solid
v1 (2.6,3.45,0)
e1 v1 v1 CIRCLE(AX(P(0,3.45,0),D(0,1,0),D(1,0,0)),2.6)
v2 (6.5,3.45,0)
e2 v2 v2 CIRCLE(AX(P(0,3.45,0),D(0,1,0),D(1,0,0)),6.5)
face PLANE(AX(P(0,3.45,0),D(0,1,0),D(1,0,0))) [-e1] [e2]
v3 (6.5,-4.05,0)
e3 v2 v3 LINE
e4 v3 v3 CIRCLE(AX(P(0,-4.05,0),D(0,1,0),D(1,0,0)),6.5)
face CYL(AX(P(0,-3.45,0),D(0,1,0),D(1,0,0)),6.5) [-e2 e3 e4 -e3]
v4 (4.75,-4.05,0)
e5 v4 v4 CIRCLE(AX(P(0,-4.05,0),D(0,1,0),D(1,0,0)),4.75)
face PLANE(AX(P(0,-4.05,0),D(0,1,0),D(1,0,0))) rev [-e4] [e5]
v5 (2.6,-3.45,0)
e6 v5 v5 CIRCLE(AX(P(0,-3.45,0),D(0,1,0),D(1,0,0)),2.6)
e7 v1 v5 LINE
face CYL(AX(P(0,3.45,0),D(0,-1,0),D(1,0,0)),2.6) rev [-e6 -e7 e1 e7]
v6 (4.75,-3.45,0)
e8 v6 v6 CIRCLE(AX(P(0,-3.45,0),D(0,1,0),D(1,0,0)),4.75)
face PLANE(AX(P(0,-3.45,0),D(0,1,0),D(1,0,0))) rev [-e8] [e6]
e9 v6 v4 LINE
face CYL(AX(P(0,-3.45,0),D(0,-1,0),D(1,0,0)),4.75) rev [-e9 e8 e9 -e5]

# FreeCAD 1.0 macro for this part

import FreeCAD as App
import Part
import Sketcher
from FreeCAD import Vector
Q = App.Units.Quantity


def add_polygon(sketch, points):
    """Adds a closed chain of lines whose ends are joined by coincident constraints."""
    first, n = sketch.GeometryCount, len(points)
    for a, b in zip(points, points[1:] + points[:1]):
        sketch.addGeometry(Part.LineSegment(App.Vector(*a, 0), App.Vector(*b, 0)), False)
    for i in range(n):
        sketch.addConstraint(Sketcher.Constraint("Coincident", first + i, 2, first + (i + 1) % n, 1))

doc = App.newDocument("Part")
body = doc.addObject("PartDesign::Body", "Body")

sketch1 = doc.addObject("Sketcher::SketchObject", "Sketch")
body.addObject(sketch1)
sketch1.AttachmentSupport = (doc.XY_Plane, [""])
sketch1.MapMode = "FlatFace"
add_polygon(sketch1, [(6.5, 3.5), (2.6, 3.5), (2.6, -3.5), (4.8, -3.5), (4.8, -4), (6.5, -4)])
sketch1.addConstraint([
    Sketcher.Constraint("Horizontal", 0),
    Sketcher.Constraint("Vertical", 1),
    Sketcher.Constraint("Horizontal", 2),
    Sketcher.Constraint("Vertical", 3),
    Sketcher.Constraint("Horizontal", 4),
    Sketcher.Constraint("Vertical", 5),
    Sketcher.Constraint("DistanceY", 1, 2, 1, 1, Q("6.9 mm")),
    Sketcher.Constraint("DistanceY", 3, 2, 3, 1, Q("0.6 mm")),
    Sketcher.Constraint("DistanceX", -1, 1, 0, 2, Q("2.6 mm")),
    Sketcher.Constraint("DistanceX", -1, 1, 4, 2, Q("6.5 mm")),
    Sketcher.Constraint("DistanceX", -1, 1, 2, 2, Q("4.75 mm")),
    Sketcher.Constraint("DistanceY", -1, 1, 0, 2, Q("3.45 mm")),
])
revolution = doc.addObject("PartDesign::Revolution", "Revolution")
body.addObject(revolution)
revolution.Profile = sketch1
revolution.ReferenceAxis = (sketch1, ["V_Axis"])
revolution.Angle = 360

doc.recompute()
